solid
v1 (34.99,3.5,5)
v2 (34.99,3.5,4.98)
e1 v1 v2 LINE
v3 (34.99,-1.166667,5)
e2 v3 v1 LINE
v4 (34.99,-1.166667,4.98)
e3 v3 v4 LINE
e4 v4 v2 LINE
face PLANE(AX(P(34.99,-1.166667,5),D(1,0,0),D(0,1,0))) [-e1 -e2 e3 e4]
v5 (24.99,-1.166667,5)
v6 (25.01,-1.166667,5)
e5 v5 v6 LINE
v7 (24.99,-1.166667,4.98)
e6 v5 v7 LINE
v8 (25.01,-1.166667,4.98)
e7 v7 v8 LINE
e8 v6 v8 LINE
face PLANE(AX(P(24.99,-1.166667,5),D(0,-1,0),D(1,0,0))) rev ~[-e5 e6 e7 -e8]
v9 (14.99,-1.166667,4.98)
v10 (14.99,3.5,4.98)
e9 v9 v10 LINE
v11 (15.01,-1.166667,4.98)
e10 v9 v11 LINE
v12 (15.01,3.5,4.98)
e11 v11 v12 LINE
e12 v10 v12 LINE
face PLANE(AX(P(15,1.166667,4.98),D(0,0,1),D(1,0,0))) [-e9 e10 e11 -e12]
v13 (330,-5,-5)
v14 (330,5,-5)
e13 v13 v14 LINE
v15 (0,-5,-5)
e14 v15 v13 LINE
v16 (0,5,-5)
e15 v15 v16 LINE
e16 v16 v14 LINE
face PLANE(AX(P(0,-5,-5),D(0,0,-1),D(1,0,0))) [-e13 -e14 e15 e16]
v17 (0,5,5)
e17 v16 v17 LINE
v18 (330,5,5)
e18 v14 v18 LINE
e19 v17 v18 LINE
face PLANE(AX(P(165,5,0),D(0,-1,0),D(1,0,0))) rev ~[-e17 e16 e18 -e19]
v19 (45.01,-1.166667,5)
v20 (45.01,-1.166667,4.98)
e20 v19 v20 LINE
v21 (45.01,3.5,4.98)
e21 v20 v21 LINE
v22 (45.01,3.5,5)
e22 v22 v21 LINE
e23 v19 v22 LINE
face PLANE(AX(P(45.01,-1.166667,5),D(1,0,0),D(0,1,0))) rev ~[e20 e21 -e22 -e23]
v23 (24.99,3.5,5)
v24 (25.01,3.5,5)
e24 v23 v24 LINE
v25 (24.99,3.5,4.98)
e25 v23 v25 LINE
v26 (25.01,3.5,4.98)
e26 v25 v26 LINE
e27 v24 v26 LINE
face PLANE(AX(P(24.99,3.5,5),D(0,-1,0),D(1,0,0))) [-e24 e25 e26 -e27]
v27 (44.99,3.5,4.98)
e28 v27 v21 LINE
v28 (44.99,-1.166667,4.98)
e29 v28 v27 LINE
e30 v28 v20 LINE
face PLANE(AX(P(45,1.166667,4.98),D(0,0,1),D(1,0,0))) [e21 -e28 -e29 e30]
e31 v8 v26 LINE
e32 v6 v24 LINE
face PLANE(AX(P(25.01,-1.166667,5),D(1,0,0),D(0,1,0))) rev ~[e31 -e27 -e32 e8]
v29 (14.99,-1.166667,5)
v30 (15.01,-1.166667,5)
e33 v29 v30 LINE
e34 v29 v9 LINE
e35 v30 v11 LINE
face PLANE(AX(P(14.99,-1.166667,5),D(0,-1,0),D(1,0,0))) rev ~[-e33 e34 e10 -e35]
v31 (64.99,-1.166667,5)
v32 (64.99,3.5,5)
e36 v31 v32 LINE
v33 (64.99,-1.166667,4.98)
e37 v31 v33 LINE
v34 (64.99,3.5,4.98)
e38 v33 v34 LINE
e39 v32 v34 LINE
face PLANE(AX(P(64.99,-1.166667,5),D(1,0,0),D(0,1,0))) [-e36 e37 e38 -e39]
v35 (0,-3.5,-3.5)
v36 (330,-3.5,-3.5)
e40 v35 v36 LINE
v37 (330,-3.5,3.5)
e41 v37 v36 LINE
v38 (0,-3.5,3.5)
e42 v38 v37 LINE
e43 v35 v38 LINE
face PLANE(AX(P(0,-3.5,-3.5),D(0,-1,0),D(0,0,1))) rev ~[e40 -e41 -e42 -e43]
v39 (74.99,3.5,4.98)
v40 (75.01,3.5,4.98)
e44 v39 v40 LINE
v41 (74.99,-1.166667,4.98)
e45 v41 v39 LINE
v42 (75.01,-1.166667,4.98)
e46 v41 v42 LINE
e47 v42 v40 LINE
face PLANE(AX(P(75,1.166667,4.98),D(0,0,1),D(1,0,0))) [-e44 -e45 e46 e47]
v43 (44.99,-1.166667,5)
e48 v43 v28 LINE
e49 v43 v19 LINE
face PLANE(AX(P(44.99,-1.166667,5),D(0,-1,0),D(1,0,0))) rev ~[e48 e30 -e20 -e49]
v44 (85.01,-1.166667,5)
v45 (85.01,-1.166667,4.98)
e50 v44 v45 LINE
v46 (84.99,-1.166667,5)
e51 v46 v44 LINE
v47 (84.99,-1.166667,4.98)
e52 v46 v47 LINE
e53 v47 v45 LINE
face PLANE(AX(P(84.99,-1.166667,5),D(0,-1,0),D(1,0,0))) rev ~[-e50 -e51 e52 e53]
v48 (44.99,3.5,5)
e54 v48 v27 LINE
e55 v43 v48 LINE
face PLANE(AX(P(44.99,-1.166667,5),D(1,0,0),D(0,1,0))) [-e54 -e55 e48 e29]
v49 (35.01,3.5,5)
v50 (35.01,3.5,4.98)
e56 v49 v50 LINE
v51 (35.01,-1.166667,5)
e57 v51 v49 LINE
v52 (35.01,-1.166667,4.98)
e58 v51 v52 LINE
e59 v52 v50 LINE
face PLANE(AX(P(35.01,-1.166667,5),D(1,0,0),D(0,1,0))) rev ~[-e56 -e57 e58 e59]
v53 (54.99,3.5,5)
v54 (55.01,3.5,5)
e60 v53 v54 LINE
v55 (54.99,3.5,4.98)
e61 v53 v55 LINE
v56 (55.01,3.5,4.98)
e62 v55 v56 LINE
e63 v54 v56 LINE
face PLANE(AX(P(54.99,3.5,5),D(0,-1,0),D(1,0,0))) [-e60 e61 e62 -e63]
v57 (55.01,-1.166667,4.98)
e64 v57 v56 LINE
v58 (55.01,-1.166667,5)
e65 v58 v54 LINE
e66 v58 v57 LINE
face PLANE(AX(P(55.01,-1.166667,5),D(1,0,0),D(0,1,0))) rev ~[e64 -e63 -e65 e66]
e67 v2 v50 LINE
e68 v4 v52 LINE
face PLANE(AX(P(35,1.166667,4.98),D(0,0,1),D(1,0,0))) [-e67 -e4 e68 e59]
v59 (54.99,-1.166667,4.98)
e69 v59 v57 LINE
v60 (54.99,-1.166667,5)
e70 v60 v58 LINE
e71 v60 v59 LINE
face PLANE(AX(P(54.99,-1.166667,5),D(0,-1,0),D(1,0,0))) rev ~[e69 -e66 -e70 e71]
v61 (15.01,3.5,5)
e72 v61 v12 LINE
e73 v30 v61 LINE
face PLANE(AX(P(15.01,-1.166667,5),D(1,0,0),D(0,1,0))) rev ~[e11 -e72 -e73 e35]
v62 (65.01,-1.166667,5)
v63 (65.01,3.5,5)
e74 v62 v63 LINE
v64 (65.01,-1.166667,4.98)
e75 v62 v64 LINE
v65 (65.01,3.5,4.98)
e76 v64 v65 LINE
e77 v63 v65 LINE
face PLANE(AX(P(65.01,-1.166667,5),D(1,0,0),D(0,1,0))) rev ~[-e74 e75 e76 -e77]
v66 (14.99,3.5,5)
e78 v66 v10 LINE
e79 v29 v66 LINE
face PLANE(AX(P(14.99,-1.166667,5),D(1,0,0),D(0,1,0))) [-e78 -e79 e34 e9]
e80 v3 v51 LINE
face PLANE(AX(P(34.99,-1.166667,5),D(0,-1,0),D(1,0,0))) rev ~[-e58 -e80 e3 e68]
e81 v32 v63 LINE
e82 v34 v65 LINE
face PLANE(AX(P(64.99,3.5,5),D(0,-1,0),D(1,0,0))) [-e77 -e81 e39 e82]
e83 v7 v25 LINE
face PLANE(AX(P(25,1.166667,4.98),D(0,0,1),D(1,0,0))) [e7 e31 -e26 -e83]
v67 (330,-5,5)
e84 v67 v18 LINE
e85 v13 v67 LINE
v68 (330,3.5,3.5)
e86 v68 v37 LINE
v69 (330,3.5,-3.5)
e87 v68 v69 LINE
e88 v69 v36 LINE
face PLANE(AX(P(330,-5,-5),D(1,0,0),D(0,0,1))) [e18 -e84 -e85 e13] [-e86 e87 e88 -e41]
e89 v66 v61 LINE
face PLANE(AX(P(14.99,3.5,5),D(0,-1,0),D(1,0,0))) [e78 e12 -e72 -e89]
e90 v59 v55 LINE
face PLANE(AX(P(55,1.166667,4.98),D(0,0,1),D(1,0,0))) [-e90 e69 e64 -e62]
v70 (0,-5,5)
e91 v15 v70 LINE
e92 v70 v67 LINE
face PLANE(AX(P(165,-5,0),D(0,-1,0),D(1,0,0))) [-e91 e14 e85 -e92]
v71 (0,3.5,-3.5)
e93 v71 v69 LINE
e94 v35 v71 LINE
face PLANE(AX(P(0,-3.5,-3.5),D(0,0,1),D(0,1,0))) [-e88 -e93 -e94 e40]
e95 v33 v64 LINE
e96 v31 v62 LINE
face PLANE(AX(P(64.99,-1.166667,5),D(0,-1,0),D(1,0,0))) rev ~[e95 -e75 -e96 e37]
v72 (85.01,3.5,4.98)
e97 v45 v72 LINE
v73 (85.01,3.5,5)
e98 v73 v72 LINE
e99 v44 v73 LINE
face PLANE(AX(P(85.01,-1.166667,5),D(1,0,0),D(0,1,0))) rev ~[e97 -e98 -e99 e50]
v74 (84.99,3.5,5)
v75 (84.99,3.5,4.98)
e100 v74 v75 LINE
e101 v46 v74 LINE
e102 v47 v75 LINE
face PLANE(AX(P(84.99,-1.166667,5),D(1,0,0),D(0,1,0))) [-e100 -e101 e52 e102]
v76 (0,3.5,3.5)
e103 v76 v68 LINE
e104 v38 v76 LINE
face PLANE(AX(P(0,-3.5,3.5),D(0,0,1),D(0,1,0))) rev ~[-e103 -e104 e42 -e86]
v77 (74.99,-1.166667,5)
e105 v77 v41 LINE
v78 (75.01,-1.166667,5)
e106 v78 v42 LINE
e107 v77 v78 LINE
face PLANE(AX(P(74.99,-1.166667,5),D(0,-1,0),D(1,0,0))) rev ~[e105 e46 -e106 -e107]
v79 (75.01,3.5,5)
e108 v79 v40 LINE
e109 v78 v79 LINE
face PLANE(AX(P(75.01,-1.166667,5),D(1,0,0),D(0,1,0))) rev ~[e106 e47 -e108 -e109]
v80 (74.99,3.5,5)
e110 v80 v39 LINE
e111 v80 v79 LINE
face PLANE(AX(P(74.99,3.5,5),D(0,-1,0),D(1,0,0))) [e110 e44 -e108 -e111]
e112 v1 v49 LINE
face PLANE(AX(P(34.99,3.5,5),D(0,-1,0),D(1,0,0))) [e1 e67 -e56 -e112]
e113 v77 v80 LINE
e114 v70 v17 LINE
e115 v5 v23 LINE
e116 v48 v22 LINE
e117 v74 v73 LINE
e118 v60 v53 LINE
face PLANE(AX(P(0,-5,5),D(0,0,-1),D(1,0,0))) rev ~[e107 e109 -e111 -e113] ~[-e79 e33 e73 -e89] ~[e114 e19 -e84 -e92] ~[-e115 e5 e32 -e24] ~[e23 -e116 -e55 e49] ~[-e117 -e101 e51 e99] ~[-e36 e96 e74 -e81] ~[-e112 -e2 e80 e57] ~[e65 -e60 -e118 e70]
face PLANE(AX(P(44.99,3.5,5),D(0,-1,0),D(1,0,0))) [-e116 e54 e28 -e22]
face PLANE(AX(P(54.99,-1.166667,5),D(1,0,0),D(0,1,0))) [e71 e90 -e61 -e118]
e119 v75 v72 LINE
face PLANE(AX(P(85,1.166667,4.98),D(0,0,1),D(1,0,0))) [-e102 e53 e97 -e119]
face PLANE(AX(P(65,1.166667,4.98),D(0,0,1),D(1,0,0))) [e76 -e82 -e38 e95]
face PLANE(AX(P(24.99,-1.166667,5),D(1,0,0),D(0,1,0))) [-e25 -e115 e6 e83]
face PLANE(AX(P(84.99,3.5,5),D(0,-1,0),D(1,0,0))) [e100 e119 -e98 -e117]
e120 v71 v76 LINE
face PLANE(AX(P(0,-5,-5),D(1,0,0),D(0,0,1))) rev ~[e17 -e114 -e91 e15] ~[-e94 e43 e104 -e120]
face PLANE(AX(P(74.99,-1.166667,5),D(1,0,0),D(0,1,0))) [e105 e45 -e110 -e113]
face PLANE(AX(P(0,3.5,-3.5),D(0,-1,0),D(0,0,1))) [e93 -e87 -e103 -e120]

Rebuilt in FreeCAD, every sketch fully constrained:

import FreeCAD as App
import Part
import Sketcher

V = App.Vector


def add_polygon(sketch, points):
    """Adds a closed chain of lines whose ends are joined by coincident constraints."""
    first, n = sketch.GeometryCount, len(points)
    for a, b in zip(points, points[1:] + points[:1]):
        sketch.addGeometry(Part.LineSegment(App.Vector(*a, 0), App.Vector(*b, 0)), False)
    for i in range(n):
        sketch.addConstraint(Sketcher.Constraint("Coincident", first + i, 2, first + (i + 1) % n, 1))

doc = App.newDocument("Part")
body = doc.addObject("PartDesign::Body", "Body")

sketch1 = body.newObject("Sketcher::SketchObject", "Sketch")
sketch1.AttachmentSupport = (doc.getObject("XZ_Plane"), [""])
sketch1.MapMode = "FlatFace"
sketch1.AttachmentOffset = App.Placement(V(0, 0, 5), App.Rotation())
add_polygon(sketch1, [(0, 5), (0, -5), (330, -5), (330, 5)])
sketch1.addConstraint([
    Sketcher.Constraint("Vertical", 0),
    Sketcher.Constraint("Horizontal", 1),
    Sketcher.Constraint("Vertical", 2),
    Sketcher.Constraint("Horizontal", 3),
    Sketcher.Constraint("Symmetric", 0, 2, 3, 2, -1, 1),
    Sketcher.Constraint("DistanceX", 1, 1, 1, 2, 330.0),
    Sketcher.Constraint("DistanceY", 0, 2, 0, 1, 10.0),
])
pad1 = body.newObject("PartDesign::Pad", "Pad")
pad1.Profile = sketch1
pad1.Length = 10
pad1.Reversed = True

sketch2 = body.newObject("Sketcher::SketchObject", "Sketch001")
sketch2.AttachmentSupport = (doc.getObject("YZ_Plane"), [""])
sketch2.MapMode = "FlatFace"
add_polygon(sketch2, [(4, -4), (-4, -4), (-4, 4), (4, 4)])
sketch2.addConstraint([
    Sketcher.Constraint("Horizontal", 0),
    Sketcher.Constraint("Vertical", 1),
    Sketcher.Constraint("Horizontal", 2),
    Sketcher.Constraint("Vertical", 3),
    Sketcher.Constraint("Symmetric", 0, 2, 2, 2, -1, 1),
    Sketcher.Constraint("Equal", 2, 1),
    Sketcher.Constraint("DistanceX", 0, 2, 0, 1, 7.0),
])
pocket1 = body.newObject("PartDesign::Pocket", "Pocket")
pocket1.Profile = sketch2
pocket1.Type = "ThroughAll"
pocket1.Reversed = True

sketch3 = body.newObject("Sketcher::SketchObject", "Sketch002")
sketch3.AttachmentSupport = (doc.getObject("XY_Plane"), [""])
sketch3.MapMode = "FlatFace"
sketch3.AttachmentOffset = App.Placement(V(0, 0, 5), App.Rotation())
add_polygon(sketch3, [(24.99, 3.5), (24.99, -1.167), (25.01, -1.167), (25.01, 3.5)])
sketch3.addConstraint([
    Sketcher.Constraint("Vertical", 0),
    Sketcher.Constraint("Horizontal", 1),
    Sketcher.Constraint("Vertical", 2),
    Sketcher.Constraint("Horizontal", 3),
    Sketcher.Constraint("DistanceX", 1, 1, 1, 2, 0.02),
    Sketcher.Constraint("DistanceY", -1, 1, 2, 2, 3.5),
    Sketcher.Constraint("DistanceX", -1, 1, 0, 2, 24.99),
    Sketcher.Constraint("DistanceY", 0, 2, 0, 1, 4.666667),
])
pocket2 = body.newObject("PartDesign::Pocket", "Pocket001")
pocket2.Profile = sketch3
pocket2.Length = 0.02

sketch4 = body.newObject("Sketcher::SketchObject", "Sketch003")
sketch4.AttachmentSupport = (doc.getObject("XY_Plane"), [""])
sketch4.MapMode = "FlatFace"
sketch4.AttachmentOffset = App.Placement(V(0, 0, 5), App.Rotation())
add_polygon(sketch4, [(34.99, 3.5), (34.99, -1.167), (35.01, -1.167), (35.01, 3.5)])
sketch4.addConstraint([
    Sketcher.Constraint("Vertical", 0),
    Sketcher.Constraint("Horizontal", 1),
    Sketcher.Constraint("Vertical", 2),
    Sketcher.Constraint("Horizontal", 3),
    Sketcher.Constraint("DistanceX", 1, 1, 1, 2, 0.02),
    Sketcher.Constraint("DistanceY", -1, 1, 2, 2, 3.5),
    Sketcher.Constraint("DistanceX", -1, 1, 0, 2, 34.99),
    Sketcher.Constraint("DistanceY", 0, 2, 0, 1, 4.666667),
])
pocket3 = body.newObject("PartDesign::Pocket", "Pocket002")
pocket3.Profile = sketch4
pocket3.Length = 0.02

sketch5 = body.newObject("Sketcher::SketchObject", "Sketch004")
sketch5.AttachmentSupport = (doc.getObject("XY_Plane"), [""])
sketch5.MapMode = "FlatFace"
sketch5.AttachmentOffset = App.Placement(V(0, 0, 5), App.Rotation())
add_polygon(sketch5, [(44.99, 3.5), (44.99, -1.167), (45.01, -1.167), (45.01, 3.5)])
sketch5.addConstraint([
    Sketcher.Constraint("Vertical", 0),
    Sketcher.Constraint("Horizontal", 1),
    Sketcher.Constraint("Vertical", 2),
    Sketcher.Constraint("Horizontal", 3),
    Sketcher.Constraint("DistanceX", 1, 1, 1, 2, 0.02),
    Sketcher.Constraint("DistanceY", -1, 1, 2, 2, 3.5),
    Sketcher.Constraint("DistanceX", -1, 1, 0, 2, 44.99),
    Sketcher.Constraint("DistanceY", 0, 2, 0, 1, 4.666667),
])
pocket4 = body.newObject("PartDesign::Pocket", "Pocket003")
pocket4.Profile = sketch5
pocket4.Length = 0.02

sketch6 = body.newObject("Sketcher::SketchObject", "Sketch005")
sketch6.AttachmentSupport = (doc.getObject("XY_Plane"), [""])
sketch6.MapMode = "FlatFace"
sketch6.AttachmentOffset = App.Placement(V(0, 0, 5), App.Rotation())
add_polygon(sketch6, [(54.99, 3.5), (54.99, -1.167), (55.01, -1.167), (55.01, 3.5)])
sketch6.addConstraint([
    Sketcher.Constraint("Vertical", 0),
    Sketcher.Constraint("Horizontal", 1),
    Sketcher.Constraint("Vertical", 2),
    Sketcher.Constraint("Horizontal", 3),
    Sketcher.Constraint("DistanceX", 1, 1, 1, 2, 0.02),
    Sketcher.Constraint("DistanceY", -1, 1, 2, 2, 3.5),
    Sketcher.Constraint("DistanceX", -1, 1, 0, 2, 54.99),
    Sketcher.Constraint("DistanceY", 0, 2, 0, 1, 4.666667),
])
pocket5 = body.newObject("PartDesign::Pocket", "Pocket004")
pocket5.Profile = sketch6
pocket5.Length = 0.02

sketch7 = body.newObject("Sketcher::SketchObject", "Sketch006")
sketch7.AttachmentSupport = (doc.getObject("XY_Plane"), [""])
sketch7.MapMode = "FlatFace"
sketch7.AttachmentOffset = App.Placement(V(0, 0, 5), App.Rotation())
add_polygon(sketch7, [(64.99, 3.5), (64.99, -1.167), (65.01, -1.167), (65.01, 3.5)])
sketch7.addConstraint([
    Sketcher.Constraint("Vertical", 0),
    Sketcher.Constraint("Horizontal", 1),
    Sketcher.Constraint("Vertical", 2),
    Sketcher.Constraint("Horizontal", 3),
    Sketcher.Constraint("DistanceX", 1, 1, 1, 2, 0.02),
    Sketcher.Constraint("DistanceY", -1, 1, 2, 2, 3.5),
    Sketcher.Constraint("DistanceX", -1, 1, 0, 2, 64.99),
    Sketcher.Constraint("DistanceY", 0, 2, 0, 1, 4.666667),
])
pocket6 = body.newObject("PartDesign::Pocket", "Pocket005")
pocket6.Profile = sketch7
pocket6.Length = 0.02

sketch8 = body.newObject("Sketcher::SketchObject", "Sketch007")
sketch8.AttachmentSupport = (doc.getObject("XY_Plane"), [""])
sketch8.MapMode = "FlatFace"
sketch8.AttachmentOffset = App.Placement(V(0, 0, 5), App.Rotation())
add_polygon(sketch8, [(74.99, 3.5), (74.99, -1.167), (75.01, -1.167), (75.01, 3.5)])
sketch8.addConstraint([
    Sketcher.Constraint("Vertical", 0),
    Sketcher.Constraint("Horizontal", 1),
    Sketcher.Constraint("Vertical", 2),
    Sketcher.Constraint("Horizontal", 3),
    Sketcher.Constraint("DistanceX", 1, 1, 1, 2, 0.02),
    Sketcher.Constraint("DistanceY", -1, 1, 2, 2, 3.5),
    Sketcher.Constraint("DistanceX", -1, 1, 0, 2, 74.99),
    Sketcher.Constraint("DistanceY", 0, 2, 0, 1, 4.666667),
])
pocket7 = body.newObject("PartDesign::Pocket", "Pocket006")
pocket7.Profile = sketch8
pocket7.Length = 0.02

sketch9 = body.newObject("Sketcher::SketchObject", "Sketch008")
sketch9.AttachmentSupport = (doc.getObject("XY_Plane"), [""])
sketch9.MapMode = "FlatFace"
sketch9.AttachmentOffset = App.Placement(V(0, 0, 5), App.Rotation())
add_polygon(sketch9, [(84.99, 3.5), (84.99, -1.167), (85.01, -1.167), (85.01, 3.5)])
sketch9.addConstraint([
    Sketcher.Constraint("Vertical", 0),
    Sketcher.Constraint("Horizontal", 1),
    Sketcher.Constraint("Vertical", 2),
    Sketcher.Constraint("Horizontal", 3),
    Sketcher.Constraint("DistanceX", 1, 1, 1, 2, 0.02),
    Sketcher.Constraint("DistanceY", -1, 1, 2, 2, 3.5),
    Sketcher.Constraint("DistanceX", -1, 1, 0, 2, 84.99),
    Sketcher.Constraint("DistanceY", 0, 2, 0, 1, 4.666667),
])
pocket8 = body.newObject("PartDesign::Pocket", "Pocket007")
pocket8.Profile = sketch9
pocket8.Length = 0.02

sketch10 = body.newObject("Sketcher::SketchObject", "Sketch009")
sketch10.AttachmentSupport = (doc.getObject("XY_Plane"), [""])
sketch10.MapMode = "FlatFace"
sketch10.AttachmentOffset = App.Placement(V(0, 0, 5), App.Rotation())
add_polygon(sketch10, [(14.99, 3.5), (14.99, -1.167), (15.01, -1.167), (15.01, 3.5)])
sketch10.addConstraint([
    Sketcher.Constraint("Vertical", 0),
    Sketcher.Constraint("Horizontal", 1),
    Sketcher.Constraint("Vertical", 2),
    Sketcher.Constraint("Horizontal", 3),
    Sketcher.Constraint("DistanceX", 1, 1, 1, 2, 0.02),
    Sketcher.Constraint("DistanceY", -1, 1, 2, 2, 3.5),
    Sketcher.Constraint("DistanceX", -1, 1, 0, 2, 14.99),
    Sketcher.Constraint("DistanceY", 0, 2, 0, 1, 4.666667),
])
pocket9 = body.newObject("PartDesign::Pocket", "Pocket008")
pocket9.Profile = sketch10
pocket9.Length = 0.02

doc.recompute()
